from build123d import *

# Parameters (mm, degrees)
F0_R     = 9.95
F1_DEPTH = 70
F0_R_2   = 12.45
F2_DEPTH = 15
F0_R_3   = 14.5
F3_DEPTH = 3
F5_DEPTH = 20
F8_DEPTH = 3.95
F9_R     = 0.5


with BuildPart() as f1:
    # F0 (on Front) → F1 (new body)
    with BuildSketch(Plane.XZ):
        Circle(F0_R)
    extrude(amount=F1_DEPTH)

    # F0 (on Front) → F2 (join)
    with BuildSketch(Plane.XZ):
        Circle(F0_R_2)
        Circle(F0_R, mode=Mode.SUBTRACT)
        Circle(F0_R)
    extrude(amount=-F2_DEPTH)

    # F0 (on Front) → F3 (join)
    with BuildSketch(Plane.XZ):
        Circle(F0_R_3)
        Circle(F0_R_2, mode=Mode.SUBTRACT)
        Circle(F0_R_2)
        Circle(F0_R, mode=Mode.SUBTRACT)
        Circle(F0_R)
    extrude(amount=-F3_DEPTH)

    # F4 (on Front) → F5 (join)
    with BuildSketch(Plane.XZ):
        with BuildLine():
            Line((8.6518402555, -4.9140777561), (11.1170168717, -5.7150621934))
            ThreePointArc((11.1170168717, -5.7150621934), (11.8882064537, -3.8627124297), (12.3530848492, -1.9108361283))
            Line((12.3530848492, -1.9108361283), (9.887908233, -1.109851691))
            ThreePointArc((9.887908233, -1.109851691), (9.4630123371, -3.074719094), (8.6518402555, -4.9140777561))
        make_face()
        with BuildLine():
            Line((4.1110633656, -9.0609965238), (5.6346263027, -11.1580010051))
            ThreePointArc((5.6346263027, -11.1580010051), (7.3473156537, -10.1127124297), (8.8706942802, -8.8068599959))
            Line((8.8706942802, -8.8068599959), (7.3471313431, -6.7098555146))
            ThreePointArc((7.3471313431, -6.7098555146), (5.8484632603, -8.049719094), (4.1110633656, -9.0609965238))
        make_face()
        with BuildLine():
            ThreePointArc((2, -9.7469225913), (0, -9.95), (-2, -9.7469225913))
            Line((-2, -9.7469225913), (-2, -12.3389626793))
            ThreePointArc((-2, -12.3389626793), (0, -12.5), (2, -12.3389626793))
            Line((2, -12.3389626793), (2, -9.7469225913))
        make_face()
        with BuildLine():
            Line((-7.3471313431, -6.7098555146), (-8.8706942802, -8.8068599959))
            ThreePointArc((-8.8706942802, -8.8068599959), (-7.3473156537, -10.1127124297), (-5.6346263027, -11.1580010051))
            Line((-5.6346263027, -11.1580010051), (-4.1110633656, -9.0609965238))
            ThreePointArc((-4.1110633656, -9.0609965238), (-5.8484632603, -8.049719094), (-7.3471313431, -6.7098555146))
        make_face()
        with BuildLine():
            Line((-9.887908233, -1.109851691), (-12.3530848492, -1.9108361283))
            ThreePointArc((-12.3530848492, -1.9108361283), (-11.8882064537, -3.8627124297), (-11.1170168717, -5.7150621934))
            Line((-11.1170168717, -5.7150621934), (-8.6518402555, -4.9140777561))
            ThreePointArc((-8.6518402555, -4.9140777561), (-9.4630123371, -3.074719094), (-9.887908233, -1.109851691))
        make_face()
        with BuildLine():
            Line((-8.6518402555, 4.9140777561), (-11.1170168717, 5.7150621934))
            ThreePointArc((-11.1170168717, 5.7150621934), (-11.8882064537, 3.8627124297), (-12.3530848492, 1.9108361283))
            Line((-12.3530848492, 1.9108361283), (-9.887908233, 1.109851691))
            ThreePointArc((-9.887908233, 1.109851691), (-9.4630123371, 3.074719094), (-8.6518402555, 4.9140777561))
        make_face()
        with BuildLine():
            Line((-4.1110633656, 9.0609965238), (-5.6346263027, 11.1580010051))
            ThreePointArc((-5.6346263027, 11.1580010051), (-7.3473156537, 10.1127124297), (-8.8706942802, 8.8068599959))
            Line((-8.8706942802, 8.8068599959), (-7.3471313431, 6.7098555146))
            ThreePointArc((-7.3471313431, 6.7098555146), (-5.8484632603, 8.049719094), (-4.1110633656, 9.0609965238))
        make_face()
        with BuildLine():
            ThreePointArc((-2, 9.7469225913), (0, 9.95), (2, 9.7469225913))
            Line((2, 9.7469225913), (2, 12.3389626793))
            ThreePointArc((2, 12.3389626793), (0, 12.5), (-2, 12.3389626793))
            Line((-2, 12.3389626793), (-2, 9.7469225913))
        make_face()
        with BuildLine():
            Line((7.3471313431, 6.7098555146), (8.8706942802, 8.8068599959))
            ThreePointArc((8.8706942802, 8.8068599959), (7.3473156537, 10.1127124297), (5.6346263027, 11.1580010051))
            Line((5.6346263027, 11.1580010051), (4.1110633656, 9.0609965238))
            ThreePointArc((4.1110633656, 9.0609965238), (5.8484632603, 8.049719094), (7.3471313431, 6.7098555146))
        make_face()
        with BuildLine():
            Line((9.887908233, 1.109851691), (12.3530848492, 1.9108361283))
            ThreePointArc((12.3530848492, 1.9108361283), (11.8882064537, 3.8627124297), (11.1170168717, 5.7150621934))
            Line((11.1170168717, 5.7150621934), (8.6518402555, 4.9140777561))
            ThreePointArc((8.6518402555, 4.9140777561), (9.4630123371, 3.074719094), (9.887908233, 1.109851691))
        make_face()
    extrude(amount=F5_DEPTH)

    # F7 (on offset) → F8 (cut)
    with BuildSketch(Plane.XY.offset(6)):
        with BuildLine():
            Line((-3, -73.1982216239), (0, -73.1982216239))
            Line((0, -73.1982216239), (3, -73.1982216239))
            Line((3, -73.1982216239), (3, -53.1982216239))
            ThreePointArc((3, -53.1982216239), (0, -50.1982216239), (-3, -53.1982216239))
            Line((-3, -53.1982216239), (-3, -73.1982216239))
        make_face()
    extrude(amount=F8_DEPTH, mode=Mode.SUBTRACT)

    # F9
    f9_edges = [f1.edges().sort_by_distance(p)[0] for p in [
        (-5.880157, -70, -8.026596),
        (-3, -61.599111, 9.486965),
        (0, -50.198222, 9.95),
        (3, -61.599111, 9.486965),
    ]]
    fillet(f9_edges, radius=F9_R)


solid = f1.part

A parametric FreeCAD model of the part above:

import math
import FreeCAD as App
import Part
import Sketcher
Q = App.Units.Quantity


def edges_at(feature, points):
    """Names of the edges that pass closest to the given points."""
    edges = feature.Shape.Edges
    near = lambda p: min(range(len(edges)), key=lambda i: edges[i].distToShape(Part.Vertex(*p))[0])
    return sorted({f"Edge{near(p) + 1}" for p in points})

doc = App.newDocument("Part")
body = doc.addObject("PartDesign::Body", "Body")

# Sketch on XZ plane
sketch1 = body.newObject("Sketcher::SketchObject", "Sketch")
sketch1.AttachmentSupport = (doc.getObject("XZ_Plane"), [""])
sketch1.MapMode = "FlatFace"
sketch1.addGeometry(Part.Circle(App.Vector(0, 0, 0), App.Vector(0, 0, 1), 9.95), False)
sketch1.addConstraint(Sketcher.Constraint("Coincident", 0, 3, -1, 1))
sketch1.addConstraint(Sketcher.Constraint("Diameter", 0, 19.9))
pad1 = body.newObject("PartDesign::Pad", "Pad")
pad1.Profile = sketch1
pad1.Length = 70

# Sketch on XZ plane
sketch2 = body.newObject("Sketcher::SketchObject", "Sketch001")
sketch2.AttachmentSupport = (doc.getObject("XZ_Plane"), [""])
sketch2.MapMode = "FlatFace"
sketch2.addGeometry(Part.Circle(App.Vector(0, 0, 0), App.Vector(0, 0, 1), 12.45), False)
sketch2.addConstraint(Sketcher.Constraint("Coincident", 0, 3, -1, 1))
sketch2.addConstraint(Sketcher.Constraint("Diameter", 0, 24.9))
pad2 = body.newObject("PartDesign::Pad", "Pad001")
pad2.Profile = sketch2
pad2.Length = 15
pad2.Reversed = True

# Sketch on XZ plane
sketch3 = body.newObject("Sketcher::SketchObject", "Sketch002")
sketch3.AttachmentSupport = (doc.getObject("XZ_Plane"), [""])
sketch3.MapMode = "FlatFace"
sketch3.addGeometry(Part.Circle(App.Vector(0, 0, 0), App.Vector(0, 0, 1), 14.5), False)
sketch3.addConstraint(Sketcher.Constraint("Coincident", 0, 3, -1, 1))
sketch3.addConstraint(Sketcher.Constraint("Diameter", 0, 29.0))
pad3 = body.newObject("PartDesign::Pad", "Pad002")
pad3.Profile = sketch3
pad3.Length = 3
pad3.Reversed = True

# Sketch on XZ plane
sketch4 = body.newObject("Sketcher::SketchObject", "Sketch003")
sketch4.AttachmentSupport = (doc.getObject("XZ_Plane"), [""])
sketch4.MapMode = "FlatFace"
sketch4.addGeometry(Part.LineSegment(App.Vector(8.65184, -4.914078, 0), App.Vector(11.117017, -5.715062, 0)), False)
sketch4.addGeometry(Part.ArcOfCircle(Part.Circle(App.Vector(0, 0, 0), App.Vector(0, 0, 1), 12.5), math.radians(-27.206896), math.radians(-8.793104)), False)
sketch4.addGeometry(Part.LineSegment(App.Vector(12.353085, -1.910836, 0), App.Vector(9.887908, -1.109852, 0)), False)
sketch4.addGeometry(Part.ArcOfCircle(Part.Circle(App.Vector(0, 0, 0), App.Vector(0, 0, 1), 9.95), math.radians(-29.595736), math.radians(-6.404264)), False)
sketch4.addGeometry(Part.LineSegment(App.Vector(4.111063, -9.060997, 0), App.Vector(5.634626, -11.158001, 0)), False)
sketch4.addGeometry(Part.ArcOfCircle(Part.Circle(App.Vector(0, 0, 0), App.Vector(0, 0, 1), 12.5), math.radians(-63.206896), math.radians(-44.793104)), False)
sketch4.addGeometry(Part.LineSegment(App.Vector(8.870694, -8.80686, 0), App.Vector(7.347131, -6.709856, 0)), False)
sketch4.addGeometry(Part.ArcOfCircle(Part.Circle(App.Vector(0, 0, 0), App.Vector(0, 0, 1), 9.95), math.radians(-65.595736), math.radians(-42.404264)), False)
sketch4.addGeometry(Part.ArcOfCircle(Part.Circle(App.Vector(0, 0, 0), App.Vector(0, 0, 1), 9.95), math.radians(-101.595736), math.radians(-78.404264)), False)
sketch4.addGeometry(Part.LineSegment(App.Vector(-2, -9.746923, 0), App.Vector(-2, -12.338963, 0)), False)
sketch4.addGeometry(Part.ArcOfCircle(Part.Circle(App.Vector(0, 0, 0), App.Vector(0, 0, 1), 12.5), math.radians(-99.206896), math.radians(-80.793104)), False)
sketch4.addGeometry(Part.LineSegment(App.Vector(2, -12.338963, 0), App.Vector(2, -9.746923, 0)), False)
sketch4.addGeometry(Part.LineSegment(App.Vector(-7.347131, -6.709856, 0), App.Vector(-8.870694, -8.80686, 0)), False)
sketch4.addGeometry(Part.ArcOfCircle(Part.Circle(App.Vector(0, 0, 0), App.Vector(0, 0, 1), 12.5), math.radians(-135.206896), math.radians(-116.793104)), False)
sketch4.addGeometry(Part.LineSegment(App.Vector(-5.634626, -11.158001, 0), App.Vector(-4.111063, -9.060997, 0)), False)
sketch4.addGeometry(Part.ArcOfCircle(Part.Circle(App.Vector(0, 0, 0), App.Vector(0, 0, 1), 9.95), math.radians(-137.595736), math.radians(-114.404264)), False)
sketch4.addGeometry(Part.LineSegment(App.Vector(-9.887908, -1.109852, 0), App.Vector(-12.353085, -1.910836, 0)), False)
sketch4.addGeometry(Part.ArcOfCircle(Part.Circle(App.Vector(0, 0, 0), App.Vector(0, 0, 1), 12.5), math.radians(-171.206896), math.radians(-152.793104)), False)
sketch4.addGeometry(Part.LineSegment(App.Vector(-11.117017, -5.715062, 0), App.Vector(-8.65184, -4.914078, 0)), False)
sketch4.addGeometry(Part.ArcOfCircle(Part.Circle(App.Vector(0, 0, 0), App.Vector(0, 0, 1), 9.95), math.radians(-173.595736), math.radians(-150.404264)), False)
sketch4.addGeometry(Part.LineSegment(App.Vector(-8.65184, 4.914078, 0), App.Vector(-11.117017, 5.715062, 0)), False)
sketch4.addGeometry(Part.ArcOfCircle(Part.Circle(App.Vector(0, 0, 0), App.Vector(0, 0, 1), 12.5), math.radians(152.793104), math.radians(171.206896)), False)
sketch4.addGeometry(Part.LineSegment(App.Vector(-12.353085, 1.910836, 0), App.Vector(-9.887908, 1.109852, 0)), False)
sketch4.addGeometry(Part.ArcOfCircle(Part.Circle(App.Vector(0, 0, 0), App.Vector(0, 0, 1), 9.95), math.radians(150.404264), math.radians(173.595736)), False)
sketch4.addGeometry(Part.LineSegment(App.Vector(-4.111063, 9.060997, 0), App.Vector(-5.634626, 11.158001, 0)), False)
sketch4.addGeometry(Part.ArcOfCircle(Part.Circle(App.Vector(0, 0, 0), App.Vector(0, 0, 1), 12.5), math.radians(116.793104), math.radians(135.206896)), False)
sketch4.addGeometry(Part.LineSegment(App.Vector(-8.870694, 8.80686, 0), App.Vector(-7.347131, 6.709856, 0)), False)
sketch4.addGeometry(Part.ArcOfCircle(Part.Circle(App.Vector(0, 0, 0), App.Vector(0, 0, 1), 9.95), math.radians(114.404264), math.radians(137.595736)), False)
sketch4.addGeometry(Part.ArcOfCircle(Part.Circle(App.Vector(0, 0, 0), App.Vector(0, 0, 1), 9.95), math.radians(78.404264), math.radians(101.595736)), False)
sketch4.addGeometry(Part.LineSegment(App.Vector(2, 9.746923, 0), App.Vector(2, 12.338963, 0)), False)
sketch4.addGeometry(Part.ArcOfCircle(Part.Circle(App.Vector(0, 0, 0), App.Vector(0, 0, 1), 12.5), math.radians(80.793104), math.radians(99.206896)), False)
sketch4.addGeometry(Part.LineSegment(App.Vector(-2, 12.338963, 0), App.Vector(-2, 9.746923, 0)), False)
sketch4.addGeometry(Part.LineSegment(App.Vector(7.347131, 6.709856, 0), App.Vector(8.870694, 8.80686, 0)), False)
sketch4.addGeometry(Part.ArcOfCircle(Part.Circle(App.Vector(0, 0, 0), App.Vector(0, 0, 1), 12.5), math.radians(44.793104), math.radians(63.206896)), False)
sketch4.addGeometry(Part.LineSegment(App.Vector(5.634626, 11.158001, 0), App.Vector(4.111063, 9.060997, 0)), False)
sketch4.addGeometry(Part.ArcOfCircle(Part.Circle(App.Vector(0, 0, 0), App.Vector(0, 0, 1), 9.95), math.radians(42.404264), math.radians(65.595736)), False)
sketch4.addGeometry(Part.LineSegment(App.Vector(9.887908, 1.109852, 0), App.Vector(12.353085, 1.910836, 0)), False)
sketch4.addGeometry(Part.ArcOfCircle(Part.Circle(App.Vector(0, 0, 0), App.Vector(0, 0, 1), 12.5), math.radians(8.793104), math.radians(27.206896)), False)
sketch4.addGeometry(Part.LineSegment(App.Vector(11.117017, 5.715062, 0), App.Vector(8.65184, 4.914078, 0)), False)
sketch4.addGeometry(Part.ArcOfCircle(Part.Circle(App.Vector(0, 0, 0), App.Vector(0, 0, 1), 9.95), math.radians(6.404264), math.radians(29.595736)), False)
sketch4.addConstraint(Sketcher.Constraint("Coincident", 0, 2, 1, 1))
sketch4.addConstraint(Sketcher.Constraint("Coincident", 1, 2, 2, 1))
sketch4.addConstraint(Sketcher.Constraint("Coincident", 2, 2, 3, 2))
sketch4.addConstraint(Sketcher.Constraint("Coincident", 3, 1, 0, 1))
sketch4.addConstraint(Sketcher.Constraint("Coincident", 4, 2, 5, 1))
sketch4.addConstraint(Sketcher.Constraint("Coincident", 5, 2, 6, 1))
sketch4.addConstraint(Sketcher.Constraint("Coincident", 6, 2, 7, 2))
sketch4.addConstraint(Sketcher.Constraint("Coincident", 7, 1, 4, 1))
sketch4.addConstraint(Sketcher.Constraint("Coincident", 8, 1, 9, 1))
sketch4.addConstraint(Sketcher.Constraint("Coincident", 9, 2, 10, 1))
sketch4.addConstraint(Sketcher.Constraint("Coincident", 10, 2, 11, 1))
sketch4.addConstraint(Sketcher.Constraint("Coincident", 11, 2, 8, 2))
sketch4.addConstraint(Sketcher.Constraint("Coincident", 12, 2, 13, 1))
sketch4.addConstraint(Sketcher.Constraint("Coincident", 13, 2, 14, 1))
sketch4.addConstraint(Sketcher.Constraint("Coincident", 14, 2, 15, 2))
sketch4.addConstraint(Sketcher.Constraint("Coincident", 15, 1, 12, 1))
sketch4.addConstraint(Sketcher.Constraint("Coincident", 16, 2, 17, 1))
sketch4.addConstraint(Sketcher.Constraint("Coincident", 17, 2, 18, 1))
sketch4.addConstraint(Sketcher.Constraint("Coincident", 18, 2, 19, 2))
sketch4.addConstraint(Sketcher.Constraint("Coincident", 19, 1, 16, 1))
sketch4.addConstraint(Sketcher.Constraint("Coincident", 20, 2, 21, 1))
sketch4.addConstraint(Sketcher.Constraint("Coincident", 21, 2, 22, 1))
sketch4.addConstraint(Sketcher.Constraint("Coincident", 22, 2, 23, 2))
sketch4.addConstraint(Sketcher.Constraint("Coincident", 23, 1, 20, 1))
sketch4.addConstraint(Sketcher.Constraint("Coincident", 24, 2, 25, 1))
sketch4.addConstraint(Sketcher.Constraint("Coincident", 25, 2, 26, 1))
sketch4.addConstraint(Sketcher.Constraint("Coincident", 26, 2, 27, 2))
sketch4.addConstraint(Sketcher.Constraint("Coincident", 27, 1, 24, 1))
sketch4.addConstraint(Sketcher.Constraint("Coincident", 28, 1, 29, 1))
sketch4.addConstraint(Sketcher.Constraint("Coincident", 29, 2, 30, 1))
sketch4.addConstraint(Sketcher.Constraint("Coincident", 30, 2, 31, 1))
sketch4.addConstraint(Sketcher.Constraint("Coincident", 31, 2, 28, 2))
sketch4.addConstraint(Sketcher.Constraint("Coincident", 32, 2, 33, 1))
sketch4.addConstraint(Sketcher.Constraint("Coincident", 33, 2, 34, 1))
sketch4.addConstraint(Sketcher.Constraint("Coincident", 34, 2, 35, 2))
sketch4.addConstraint(Sketcher.Constraint("Coincident", 35, 1, 32, 1))
sketch4.addConstraint(Sketcher.Constraint("Coincident", 36, 2, 37, 1))
sketch4.addConstraint(Sketcher.Constraint("Coincident", 37, 2, 38, 1))
sketch4.addConstraint(Sketcher.Constraint("Coincident", 38, 2, 39, 2))
sketch4.addConstraint(Sketcher.Constraint("Coincident", 39, 1, 36, 1))
sketch4.addConstraint(Sketcher.Constraint("Vertical", 9))
sketch4.addConstraint(Sketcher.Constraint("Vertical", 11))
sketch4.addConstraint(Sketcher.Constraint("Vertical", 29))
sketch4.addConstraint(Sketcher.Constraint("Vertical", 31))
sketch4.addConstraint(Sketcher.Constraint("Coincident", 1, 3, -1, 1))
sketch4.addConstraint(Sketcher.Constraint("Coincident", 3, 3, -1, 1))
sketch4.addConstraint(Sketcher.Constraint("Coincident", 5, 3, -1, 1))
sketch4.addConstraint(Sketcher.Constraint("Coincident", 7, 3, -1, 1))
sketch4.addConstraint(Sketcher.Constraint("Coincident", 8, 3, -1, 1))
sketch4.addConstraint(Sketcher.Constraint("Coincident", 10, 3, -1, 1))
sketch4.addConstraint(Sketcher.Constraint("Coincident", 13, 3, -1, 1))
sketch4.addConstraint(Sketcher.Constraint("Coincident", 15, 3, -1, 1))
sketch4.addConstraint(Sketcher.Constraint("Coincident", 17, 3, -1, 1))
sketch4.addConstraint(Sketcher.Constraint("Coincident", 19, 3, -1, 1))
sketch4.addConstraint(Sketcher.Constraint("Coincident", 21, 3, -1, 1))
sketch4.addConstraint(Sketcher.Constraint("Coincident", 23, 3, -1, 1))
sketch4.addConstraint(Sketcher.Constraint("Coincident", 25, 3, -1, 1))
sketch4.addConstraint(Sketcher.Constraint("Coincident", 27, 3, -1, 1))
sketch4.addConstraint(Sketcher.Constraint("Coincident", 28, 3, -1, 1))
sketch4.addConstraint(Sketcher.Constraint("Coincident", 30, 3, -1, 1))
sketch4.addConstraint(Sketcher.Constraint("Coincident", 33, 3, -1, 1))
sketch4.addConstraint(Sketcher.Constraint("Coincident", 35, 3, -1, 1))
sketch4.addConstraint(Sketcher.Constraint("Coincident", 37, 3, -1, 1))
sketch4.addConstraint(Sketcher.Constraint("Coincident", 39, 3, -1, 1))
sketch4.addConstraint(Sketcher.Constraint("Equal", 1, 5))
sketch4.addConstraint(Sketcher.Constraint("Equal", 3, 7))
sketch4.addConstraint(Sketcher.Constraint("Equal", 7, 8))
sketch4.addConstraint(Sketcher.Constraint("Equal", 5, 10))
sketch4.addConstraint(Sketcher.Constraint("Equal", 10, 13))
sketch4.addConstraint(Sketcher.Constraint("Equal", 8, 15))
sketch4.addConstraint(Sketcher.Constraint("Equal", 13, 17))
sketch4.addConstraint(Sketcher.Constraint("Equal", 15, 19))
sketch4.addConstraint(Sketcher.Constraint("Equal", 17, 21))
sketch4.addConstraint(Sketcher.Constraint("Equal", 19, 23))
sketch4.addConstraint(Sketcher.Constraint("Equal", 21, 25))
sketch4.addConstraint(Sketcher.Constraint("Equal", 23, 27))
sketch4.addConstraint(Sketcher.Constraint("Equal", 27, 28))
sketch4.addConstraint(Sketcher.Constraint("Equal", 25, 30))
sketch4.addConstraint(Sketcher.Constraint("Equal", 30, 33))
sketch4.addConstraint(Sketcher.Constraint("Equal", 28, 35))
sketch4.addConstraint(Sketcher.Constraint("Equal", 33, 37))
sketch4.addConstraint(Sketcher.Constraint("Equal", 35, 39))
sketch4.addConstraint(Sketcher.Constraint("Parallel", 0, 2))
sketch4.addConstraint(Sketcher.Constraint("Parallel", 4, 6))
sketch4.addConstraint(Sketcher.Constraint("Parallel", 12, 14))
sketch4.addConstraint(Sketcher.Constraint("Parallel", 16, 18))
sketch4.addConstraint(Sketcher.Constraint("Parallel", 2, 20))
sketch4.addConstraint(Sketcher.Constraint("Parallel", 20, 22))
sketch4.addConstraint(Sketcher.Constraint("Parallel", 6, 24))
sketch4.addConstraint(Sketcher.Constraint("Parallel", 24, 26))
sketch4.addConstraint(Sketcher.Constraint("Parallel", 14, 32))
sketch4.addConstraint(Sketcher.Constraint("Parallel", 32, 34))
sketch4.addConstraint(Sketcher.Constraint("Parallel", 18, 36))
sketch4.addConstraint(Sketcher.Constraint("Parallel", 36, 38))
sketch4.addConstraint(Sketcher.Constraint("Horizontal", 9, 2, 10, 2))
sketch4.addConstraint(Sketcher.Constraint("Horizontal", 5, 2, 12, 2))
sketch4.addConstraint(Sketcher.Constraint("Horizontal", 4, 2, 13, 2))
sketch4.addConstraint(Sketcher.Constraint("Horizontal", 7, 1, 14, 2))
sketch4.addConstraint(Sketcher.Constraint("Horizontal", 1, 2, 16, 2))
sketch4.addConstraint(Sketcher.Constraint("Horizontal", 0, 2, 17, 2))
sketch4.addConstraint(Sketcher.Constraint("Horizontal", 3, 1, 18, 2))
sketch4.addConstraint(Sketcher.Constraint("Horizontal", 29, 2, 30, 2))
sketch4.addConstraint(Sketcher.Constraint("Horizontal", 25, 2, 32, 2))
sketch4.addConstraint(Sketcher.Constraint("Horizontal", 24, 2, 33, 2))
sketch4.addConstraint(Sketcher.Constraint("Horizontal", 21, 2, 36, 2))
sketch4.addConstraint(Sketcher.Constraint("Horizontal", 20, 2, 37, 2))
sketch4.addConstraint(Sketcher.Constraint("Vertical", 17, 2, 20, 2))
sketch4.addConstraint(Sketcher.Constraint("Vertical", 16, 2, 21, 2))
sketch4.addConstraint(Sketcher.Constraint("Vertical", 13, 2, 24, 2))
sketch4.addConstraint(Sketcher.Constraint("Vertical", 12, 2, 25, 2))
sketch4.addConstraint(Sketcher.Constraint("Vertical", 11, 2, 28, 1))
sketch4.addConstraint(Sketcher.Constraint("Equal", 0, 2))
sketch4.addConstraint(Sketcher.Constraint("Equal", 2, 4))
sketch4.addConstraint(Sketcher.Constraint("Equal", 4, 6))
sketch4.addConstraint(Sketcher.Constraint("Radius", 1, 12.5))
sketch4.addConstraint(Sketcher.Constraint("Angle", 0, Q("-18 deg")))
sketch4.addConstraint(Sketcher.Constraint("Angle", 4, Q("-54 deg")))
sketch4.addConstraint(Sketcher.Constraint("Radius", 3, 9.95))
sketch4.addConstraint(Sketcher.Constraint("DistanceX", 8, 1, -1, 1, 2.0))
sketch4.addConstraint(Sketcher.Constraint("DistanceY", 4, 2, -1, 1, 11.158001))
pad4 = body.newObject("PartDesign::Pad", "Pad003")
pad4.Profile = sketch4
pad4.Length = 20

# Sketch on XY plane
sketch5 = body.newObject("Sketcher::SketchObject", "Sketch004")
sketch5.AttachmentSupport = (doc.getObject("XY_Plane"), [""])
sketch5.MapMode = "FlatFace"
sketch5.AttachmentOffset = App.Placement(App.Vector(0, 0, 6), App.Rotation())
sketch5.addGeometry(Part.LineSegment(App.Vector(-3, -73.198222, 0), App.Vector(3, -73.198222, 0)), False)
sketch5.addGeometry(Part.LineSegment(App.Vector(3, -73.198222, 0), App.Vector(3, -53.198222, 0)), False)
sketch5.addGeometry(Part.ArcOfCircle(Part.Circle(App.Vector(0, -53.198222, 0), App.Vector(0, 0, 1), 3), math.radians(0), math.radians(180)), False)
sketch5.addGeometry(Part.LineSegment(App.Vector(-3, -53.198222, 0), App.Vector(-3, -73.198222, 0)), False)
sketch5.addConstraint(Sketcher.Constraint("Coincident", 0, 2, 1, 1))
sketch5.addConstraint(Sketcher.Constraint("Tangent", 1, 2, 2, 1))
sketch5.addConstraint(Sketcher.Constraint("Tangent", 2, 2, 3, 1))
sketch5.addConstraint(Sketcher.Constraint("Coincident", 3, 2, 0, 1))
sketch5.addConstraint(Sketcher.Constraint("Horizontal", 0))
sketch5.addConstraint(Sketcher.Constraint("Vertical", 1))
sketch5.addConstraint(Sketcher.Constraint("Vertical", 3))
sketch5.addConstraint(Sketcher.Constraint("PointOnObject", 2, 3, -2))
sketch5.addConstraint(Sketcher.Constraint("Radius", 2, 3.0))
sketch5.addConstraint(Sketcher.Constraint("DistanceY", 1, 1, 1, 2, 20.0))
sketch5.addConstraint(Sketcher.Constraint("DistanceY", 2, 3, -1, 1, 53.198222))
pocket1 = body.newObject("PartDesign::Pocket", "Pocket")
pocket1.Profile = sketch5
pocket1.Length = 3.95
pocket1.Reversed = True
doc.recompute()

fillet = body.newObject("PartDesign::Fillet", "Fillet")
fillet.Base = (pocket1, edges_at(pocket1, [
    (-5.88, -70, -8.027),
    (-3, -61.599, 9.487),
    (0, -50.198, 9.95),
    (3, -61.599, 9.487),
]))
fillet.Radius = 0.5

doc.recompute()
